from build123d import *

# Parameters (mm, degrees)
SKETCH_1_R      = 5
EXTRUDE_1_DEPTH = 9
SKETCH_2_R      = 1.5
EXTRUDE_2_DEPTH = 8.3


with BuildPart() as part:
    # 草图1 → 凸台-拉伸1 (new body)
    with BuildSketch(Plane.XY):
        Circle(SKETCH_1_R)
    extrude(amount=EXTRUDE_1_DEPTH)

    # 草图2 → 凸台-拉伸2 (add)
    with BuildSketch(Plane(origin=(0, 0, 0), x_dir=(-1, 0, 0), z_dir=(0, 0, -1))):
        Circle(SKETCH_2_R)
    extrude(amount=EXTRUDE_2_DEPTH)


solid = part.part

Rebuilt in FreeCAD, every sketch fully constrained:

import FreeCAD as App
import Part
import Sketcher
from FreeCAD import Vector

doc = App.newDocument("Part")
body = doc.addObject("PartDesign::Body", "Body")

# Sketch on XY plane
sketch1 = doc.addObject("Sketcher::SketchObject", "Sketch")
body.addObject(sketch1)
sketch1.AttachmentSupport = (doc.XY_Plane, [""])
sketch1.MapMode = "FlatFace"
sketch1.addGeometry(Part.Circle(Vector(0, 0, 0), Vector(0, 0, 1), 5), False)
sketch1.addConstraint([
    Sketcher.Constraint("Coincident", 0, 3, -1, 1),
    Sketcher.Constraint("Diameter", 0, 10.0),
])
pad1 = doc.addObject("PartDesign::Pad", "Pad")
body.addObject(pad1)
pad1.Profile = sketch1
pad1.Length = 9

# Sketch on XY plane
sketch2 = doc.addObject("Sketcher::SketchObject", "Sketch001")
body.addObject(sketch2)
sketch2.AttachmentSupport = (doc.XY_Plane, [""])
sketch2.MapMode = "FlatFace"
sketch2.addGeometry(Part.Circle(Vector(0, 0, 0), Vector(0, 0, 1), 1.5), False)
sketch2.addConstraint([
    Sketcher.Constraint("Coincident", 0, 3, -1, 1),
    Sketcher.Constraint("Diameter", 0, 3.0),
])
pad2 = doc.addObject("PartDesign::Pad", "Pad001")
body.addObject(pad2)
pad2.Profile = sketch2
pad2.Length = 8.3
pad2.Reversed = True

doc.recompute()
